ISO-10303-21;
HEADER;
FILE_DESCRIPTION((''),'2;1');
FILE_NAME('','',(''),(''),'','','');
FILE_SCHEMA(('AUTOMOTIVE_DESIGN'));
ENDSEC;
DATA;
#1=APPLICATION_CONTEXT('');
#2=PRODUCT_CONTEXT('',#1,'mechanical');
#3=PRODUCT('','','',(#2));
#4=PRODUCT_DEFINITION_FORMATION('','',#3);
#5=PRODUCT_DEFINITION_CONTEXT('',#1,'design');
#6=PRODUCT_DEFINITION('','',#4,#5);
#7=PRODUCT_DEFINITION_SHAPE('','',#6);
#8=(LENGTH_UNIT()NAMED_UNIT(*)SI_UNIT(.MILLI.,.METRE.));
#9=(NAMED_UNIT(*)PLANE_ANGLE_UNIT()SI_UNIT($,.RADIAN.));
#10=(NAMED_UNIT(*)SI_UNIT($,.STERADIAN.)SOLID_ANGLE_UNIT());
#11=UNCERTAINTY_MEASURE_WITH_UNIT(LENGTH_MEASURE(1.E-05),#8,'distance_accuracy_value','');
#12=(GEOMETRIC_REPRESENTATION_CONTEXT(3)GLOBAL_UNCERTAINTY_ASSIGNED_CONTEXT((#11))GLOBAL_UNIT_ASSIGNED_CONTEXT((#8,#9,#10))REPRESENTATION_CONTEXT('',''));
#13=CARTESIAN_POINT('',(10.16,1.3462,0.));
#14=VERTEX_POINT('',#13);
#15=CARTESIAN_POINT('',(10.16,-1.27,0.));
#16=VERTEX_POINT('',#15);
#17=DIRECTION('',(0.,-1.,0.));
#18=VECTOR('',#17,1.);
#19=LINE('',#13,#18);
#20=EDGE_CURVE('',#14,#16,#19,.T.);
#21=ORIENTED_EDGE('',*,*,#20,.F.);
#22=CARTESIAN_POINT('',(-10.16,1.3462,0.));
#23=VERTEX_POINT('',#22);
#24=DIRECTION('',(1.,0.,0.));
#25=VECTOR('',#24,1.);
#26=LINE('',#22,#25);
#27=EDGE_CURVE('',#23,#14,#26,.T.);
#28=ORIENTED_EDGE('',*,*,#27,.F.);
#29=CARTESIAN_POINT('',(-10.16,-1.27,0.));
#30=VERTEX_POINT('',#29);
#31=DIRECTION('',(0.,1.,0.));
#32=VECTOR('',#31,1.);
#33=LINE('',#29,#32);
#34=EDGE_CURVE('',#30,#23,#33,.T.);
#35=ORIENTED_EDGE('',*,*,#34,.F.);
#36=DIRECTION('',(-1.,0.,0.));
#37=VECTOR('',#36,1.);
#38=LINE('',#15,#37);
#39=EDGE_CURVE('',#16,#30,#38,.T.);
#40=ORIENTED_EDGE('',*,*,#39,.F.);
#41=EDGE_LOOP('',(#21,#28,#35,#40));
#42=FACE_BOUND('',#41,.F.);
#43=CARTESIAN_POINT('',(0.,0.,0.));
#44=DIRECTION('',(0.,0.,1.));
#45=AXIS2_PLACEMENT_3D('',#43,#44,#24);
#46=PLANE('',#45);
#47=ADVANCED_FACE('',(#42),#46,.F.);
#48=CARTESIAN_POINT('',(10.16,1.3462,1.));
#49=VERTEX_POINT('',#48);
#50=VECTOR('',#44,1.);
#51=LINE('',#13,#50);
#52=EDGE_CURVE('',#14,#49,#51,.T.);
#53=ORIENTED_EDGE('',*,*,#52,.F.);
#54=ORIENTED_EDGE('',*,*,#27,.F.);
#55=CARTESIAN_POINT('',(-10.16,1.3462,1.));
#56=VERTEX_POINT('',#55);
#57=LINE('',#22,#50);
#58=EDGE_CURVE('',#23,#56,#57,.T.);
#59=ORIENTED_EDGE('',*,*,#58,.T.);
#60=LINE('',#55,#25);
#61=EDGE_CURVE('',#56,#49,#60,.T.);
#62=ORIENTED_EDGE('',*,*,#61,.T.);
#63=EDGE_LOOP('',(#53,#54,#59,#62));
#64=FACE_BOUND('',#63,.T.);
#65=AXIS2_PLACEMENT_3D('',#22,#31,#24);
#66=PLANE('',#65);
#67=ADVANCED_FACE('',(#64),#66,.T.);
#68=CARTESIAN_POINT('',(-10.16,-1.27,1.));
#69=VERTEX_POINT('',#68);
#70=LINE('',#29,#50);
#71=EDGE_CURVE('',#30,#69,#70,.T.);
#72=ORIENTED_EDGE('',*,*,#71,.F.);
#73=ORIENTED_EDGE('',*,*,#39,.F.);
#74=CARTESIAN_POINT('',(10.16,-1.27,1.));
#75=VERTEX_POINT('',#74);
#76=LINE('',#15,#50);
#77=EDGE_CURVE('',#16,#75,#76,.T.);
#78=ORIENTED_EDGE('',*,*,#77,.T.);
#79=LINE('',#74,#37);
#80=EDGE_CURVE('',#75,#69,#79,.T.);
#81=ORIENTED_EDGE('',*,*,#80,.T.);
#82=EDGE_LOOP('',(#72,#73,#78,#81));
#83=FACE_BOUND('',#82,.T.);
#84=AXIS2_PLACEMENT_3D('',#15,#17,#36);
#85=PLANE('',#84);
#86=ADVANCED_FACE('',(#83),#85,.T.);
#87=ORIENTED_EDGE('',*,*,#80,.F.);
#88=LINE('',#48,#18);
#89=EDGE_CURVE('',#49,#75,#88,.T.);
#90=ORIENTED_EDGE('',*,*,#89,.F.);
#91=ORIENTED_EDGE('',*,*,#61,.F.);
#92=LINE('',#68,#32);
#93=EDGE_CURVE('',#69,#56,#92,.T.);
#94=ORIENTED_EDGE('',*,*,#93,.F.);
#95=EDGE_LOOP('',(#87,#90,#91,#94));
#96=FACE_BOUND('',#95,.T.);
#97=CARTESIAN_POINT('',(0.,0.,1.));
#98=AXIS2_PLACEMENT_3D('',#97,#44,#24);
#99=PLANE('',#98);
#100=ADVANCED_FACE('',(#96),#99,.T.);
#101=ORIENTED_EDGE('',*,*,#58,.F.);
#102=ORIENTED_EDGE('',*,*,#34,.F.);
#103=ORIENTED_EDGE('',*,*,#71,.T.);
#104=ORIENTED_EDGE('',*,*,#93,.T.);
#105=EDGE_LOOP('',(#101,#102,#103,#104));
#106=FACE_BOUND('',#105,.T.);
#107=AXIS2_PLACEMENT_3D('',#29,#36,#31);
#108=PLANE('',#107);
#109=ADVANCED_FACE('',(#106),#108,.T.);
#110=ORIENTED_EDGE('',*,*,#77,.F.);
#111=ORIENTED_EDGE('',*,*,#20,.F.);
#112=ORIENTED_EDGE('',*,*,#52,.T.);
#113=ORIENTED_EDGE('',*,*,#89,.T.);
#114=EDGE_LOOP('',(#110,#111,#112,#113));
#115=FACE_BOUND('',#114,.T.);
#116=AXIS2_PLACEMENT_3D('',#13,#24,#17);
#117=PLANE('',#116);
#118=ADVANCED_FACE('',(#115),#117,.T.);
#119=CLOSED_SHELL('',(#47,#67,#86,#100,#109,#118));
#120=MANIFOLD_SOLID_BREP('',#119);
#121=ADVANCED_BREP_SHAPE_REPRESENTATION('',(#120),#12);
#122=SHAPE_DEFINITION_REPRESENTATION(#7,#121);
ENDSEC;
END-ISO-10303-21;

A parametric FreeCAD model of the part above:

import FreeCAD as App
import Part
import Sketcher
Q = App.Units.Quantity

doc = App.newDocument("Part")
body = doc.addObject("PartDesign::Body", "Body")

# Sketch on XY plane
sketch1 = body.newObject("Sketcher::SketchObject", "Sketch")
sketch1.AttachmentSupport = (doc.getObject("XY_Plane"), [""])
sketch1.MapMode = "FlatFace"
sketch1.addGeometry(Part.LineSegment(App.Vector(10.16, 1.3462, 0), App.Vector(-10.16, 1.3462, 0)), False)
sketch1.addGeometry(Part.LineSegment(App.Vector(-10.16, 1.3462, 0), App.Vector(-10.16, -1.27, 0)), False)
sketch1.addGeometry(Part.LineSegment(App.Vector(-10.16, -1.27, 0), App.Vector(10.16, -1.27, 0)), False)
sketch1.addGeometry(Part.LineSegment(App.Vector(10.16, -1.27, 0), App.Vector(10.16, 1.3462, 0)), False)
sketch1.addConstraint(Sketcher.Constraint("Coincident", 0, 2, 1, 1))
sketch1.addConstraint(Sketcher.Constraint("Coincident", 1, 2, 2, 1))
sketch1.addConstraint(Sketcher.Constraint("Coincident", 2, 2, 3, 1))
sketch1.addConstraint(Sketcher.Constraint("Coincident", 3, 2, 0, 1))
sketch1.addConstraint(Sketcher.Constraint("Horizontal", 0))
sketch1.addConstraint(Sketcher.Constraint("Vertical", 1))
sketch1.addConstraint(Sketcher.Constraint("Horizontal", 2))
sketch1.addConstraint(Sketcher.Constraint("Vertical", 3))
sketch1.addConstraint(Sketcher.Constraint("DistanceX", 0, 2, 0, 1, Q("0.8 in")))
sketch1.addConstraint(Sketcher.Constraint("DistanceX", 0, 2, -1, 1, Q("0.4 in")))
sketch1.addConstraint(Sketcher.Constraint("DistanceY", 1, 2, 1, 1, Q("0.103 in")))
sketch1.addConstraint(Sketcher.Constraint("DistanceY", 1, 2, -1, 1, Q("0.05 in")))
pad1 = body.newObject("PartDesign::Pad", "Pad")
pad1.Profile = sketch1
pad1.Length = 1

doc.recompute()
